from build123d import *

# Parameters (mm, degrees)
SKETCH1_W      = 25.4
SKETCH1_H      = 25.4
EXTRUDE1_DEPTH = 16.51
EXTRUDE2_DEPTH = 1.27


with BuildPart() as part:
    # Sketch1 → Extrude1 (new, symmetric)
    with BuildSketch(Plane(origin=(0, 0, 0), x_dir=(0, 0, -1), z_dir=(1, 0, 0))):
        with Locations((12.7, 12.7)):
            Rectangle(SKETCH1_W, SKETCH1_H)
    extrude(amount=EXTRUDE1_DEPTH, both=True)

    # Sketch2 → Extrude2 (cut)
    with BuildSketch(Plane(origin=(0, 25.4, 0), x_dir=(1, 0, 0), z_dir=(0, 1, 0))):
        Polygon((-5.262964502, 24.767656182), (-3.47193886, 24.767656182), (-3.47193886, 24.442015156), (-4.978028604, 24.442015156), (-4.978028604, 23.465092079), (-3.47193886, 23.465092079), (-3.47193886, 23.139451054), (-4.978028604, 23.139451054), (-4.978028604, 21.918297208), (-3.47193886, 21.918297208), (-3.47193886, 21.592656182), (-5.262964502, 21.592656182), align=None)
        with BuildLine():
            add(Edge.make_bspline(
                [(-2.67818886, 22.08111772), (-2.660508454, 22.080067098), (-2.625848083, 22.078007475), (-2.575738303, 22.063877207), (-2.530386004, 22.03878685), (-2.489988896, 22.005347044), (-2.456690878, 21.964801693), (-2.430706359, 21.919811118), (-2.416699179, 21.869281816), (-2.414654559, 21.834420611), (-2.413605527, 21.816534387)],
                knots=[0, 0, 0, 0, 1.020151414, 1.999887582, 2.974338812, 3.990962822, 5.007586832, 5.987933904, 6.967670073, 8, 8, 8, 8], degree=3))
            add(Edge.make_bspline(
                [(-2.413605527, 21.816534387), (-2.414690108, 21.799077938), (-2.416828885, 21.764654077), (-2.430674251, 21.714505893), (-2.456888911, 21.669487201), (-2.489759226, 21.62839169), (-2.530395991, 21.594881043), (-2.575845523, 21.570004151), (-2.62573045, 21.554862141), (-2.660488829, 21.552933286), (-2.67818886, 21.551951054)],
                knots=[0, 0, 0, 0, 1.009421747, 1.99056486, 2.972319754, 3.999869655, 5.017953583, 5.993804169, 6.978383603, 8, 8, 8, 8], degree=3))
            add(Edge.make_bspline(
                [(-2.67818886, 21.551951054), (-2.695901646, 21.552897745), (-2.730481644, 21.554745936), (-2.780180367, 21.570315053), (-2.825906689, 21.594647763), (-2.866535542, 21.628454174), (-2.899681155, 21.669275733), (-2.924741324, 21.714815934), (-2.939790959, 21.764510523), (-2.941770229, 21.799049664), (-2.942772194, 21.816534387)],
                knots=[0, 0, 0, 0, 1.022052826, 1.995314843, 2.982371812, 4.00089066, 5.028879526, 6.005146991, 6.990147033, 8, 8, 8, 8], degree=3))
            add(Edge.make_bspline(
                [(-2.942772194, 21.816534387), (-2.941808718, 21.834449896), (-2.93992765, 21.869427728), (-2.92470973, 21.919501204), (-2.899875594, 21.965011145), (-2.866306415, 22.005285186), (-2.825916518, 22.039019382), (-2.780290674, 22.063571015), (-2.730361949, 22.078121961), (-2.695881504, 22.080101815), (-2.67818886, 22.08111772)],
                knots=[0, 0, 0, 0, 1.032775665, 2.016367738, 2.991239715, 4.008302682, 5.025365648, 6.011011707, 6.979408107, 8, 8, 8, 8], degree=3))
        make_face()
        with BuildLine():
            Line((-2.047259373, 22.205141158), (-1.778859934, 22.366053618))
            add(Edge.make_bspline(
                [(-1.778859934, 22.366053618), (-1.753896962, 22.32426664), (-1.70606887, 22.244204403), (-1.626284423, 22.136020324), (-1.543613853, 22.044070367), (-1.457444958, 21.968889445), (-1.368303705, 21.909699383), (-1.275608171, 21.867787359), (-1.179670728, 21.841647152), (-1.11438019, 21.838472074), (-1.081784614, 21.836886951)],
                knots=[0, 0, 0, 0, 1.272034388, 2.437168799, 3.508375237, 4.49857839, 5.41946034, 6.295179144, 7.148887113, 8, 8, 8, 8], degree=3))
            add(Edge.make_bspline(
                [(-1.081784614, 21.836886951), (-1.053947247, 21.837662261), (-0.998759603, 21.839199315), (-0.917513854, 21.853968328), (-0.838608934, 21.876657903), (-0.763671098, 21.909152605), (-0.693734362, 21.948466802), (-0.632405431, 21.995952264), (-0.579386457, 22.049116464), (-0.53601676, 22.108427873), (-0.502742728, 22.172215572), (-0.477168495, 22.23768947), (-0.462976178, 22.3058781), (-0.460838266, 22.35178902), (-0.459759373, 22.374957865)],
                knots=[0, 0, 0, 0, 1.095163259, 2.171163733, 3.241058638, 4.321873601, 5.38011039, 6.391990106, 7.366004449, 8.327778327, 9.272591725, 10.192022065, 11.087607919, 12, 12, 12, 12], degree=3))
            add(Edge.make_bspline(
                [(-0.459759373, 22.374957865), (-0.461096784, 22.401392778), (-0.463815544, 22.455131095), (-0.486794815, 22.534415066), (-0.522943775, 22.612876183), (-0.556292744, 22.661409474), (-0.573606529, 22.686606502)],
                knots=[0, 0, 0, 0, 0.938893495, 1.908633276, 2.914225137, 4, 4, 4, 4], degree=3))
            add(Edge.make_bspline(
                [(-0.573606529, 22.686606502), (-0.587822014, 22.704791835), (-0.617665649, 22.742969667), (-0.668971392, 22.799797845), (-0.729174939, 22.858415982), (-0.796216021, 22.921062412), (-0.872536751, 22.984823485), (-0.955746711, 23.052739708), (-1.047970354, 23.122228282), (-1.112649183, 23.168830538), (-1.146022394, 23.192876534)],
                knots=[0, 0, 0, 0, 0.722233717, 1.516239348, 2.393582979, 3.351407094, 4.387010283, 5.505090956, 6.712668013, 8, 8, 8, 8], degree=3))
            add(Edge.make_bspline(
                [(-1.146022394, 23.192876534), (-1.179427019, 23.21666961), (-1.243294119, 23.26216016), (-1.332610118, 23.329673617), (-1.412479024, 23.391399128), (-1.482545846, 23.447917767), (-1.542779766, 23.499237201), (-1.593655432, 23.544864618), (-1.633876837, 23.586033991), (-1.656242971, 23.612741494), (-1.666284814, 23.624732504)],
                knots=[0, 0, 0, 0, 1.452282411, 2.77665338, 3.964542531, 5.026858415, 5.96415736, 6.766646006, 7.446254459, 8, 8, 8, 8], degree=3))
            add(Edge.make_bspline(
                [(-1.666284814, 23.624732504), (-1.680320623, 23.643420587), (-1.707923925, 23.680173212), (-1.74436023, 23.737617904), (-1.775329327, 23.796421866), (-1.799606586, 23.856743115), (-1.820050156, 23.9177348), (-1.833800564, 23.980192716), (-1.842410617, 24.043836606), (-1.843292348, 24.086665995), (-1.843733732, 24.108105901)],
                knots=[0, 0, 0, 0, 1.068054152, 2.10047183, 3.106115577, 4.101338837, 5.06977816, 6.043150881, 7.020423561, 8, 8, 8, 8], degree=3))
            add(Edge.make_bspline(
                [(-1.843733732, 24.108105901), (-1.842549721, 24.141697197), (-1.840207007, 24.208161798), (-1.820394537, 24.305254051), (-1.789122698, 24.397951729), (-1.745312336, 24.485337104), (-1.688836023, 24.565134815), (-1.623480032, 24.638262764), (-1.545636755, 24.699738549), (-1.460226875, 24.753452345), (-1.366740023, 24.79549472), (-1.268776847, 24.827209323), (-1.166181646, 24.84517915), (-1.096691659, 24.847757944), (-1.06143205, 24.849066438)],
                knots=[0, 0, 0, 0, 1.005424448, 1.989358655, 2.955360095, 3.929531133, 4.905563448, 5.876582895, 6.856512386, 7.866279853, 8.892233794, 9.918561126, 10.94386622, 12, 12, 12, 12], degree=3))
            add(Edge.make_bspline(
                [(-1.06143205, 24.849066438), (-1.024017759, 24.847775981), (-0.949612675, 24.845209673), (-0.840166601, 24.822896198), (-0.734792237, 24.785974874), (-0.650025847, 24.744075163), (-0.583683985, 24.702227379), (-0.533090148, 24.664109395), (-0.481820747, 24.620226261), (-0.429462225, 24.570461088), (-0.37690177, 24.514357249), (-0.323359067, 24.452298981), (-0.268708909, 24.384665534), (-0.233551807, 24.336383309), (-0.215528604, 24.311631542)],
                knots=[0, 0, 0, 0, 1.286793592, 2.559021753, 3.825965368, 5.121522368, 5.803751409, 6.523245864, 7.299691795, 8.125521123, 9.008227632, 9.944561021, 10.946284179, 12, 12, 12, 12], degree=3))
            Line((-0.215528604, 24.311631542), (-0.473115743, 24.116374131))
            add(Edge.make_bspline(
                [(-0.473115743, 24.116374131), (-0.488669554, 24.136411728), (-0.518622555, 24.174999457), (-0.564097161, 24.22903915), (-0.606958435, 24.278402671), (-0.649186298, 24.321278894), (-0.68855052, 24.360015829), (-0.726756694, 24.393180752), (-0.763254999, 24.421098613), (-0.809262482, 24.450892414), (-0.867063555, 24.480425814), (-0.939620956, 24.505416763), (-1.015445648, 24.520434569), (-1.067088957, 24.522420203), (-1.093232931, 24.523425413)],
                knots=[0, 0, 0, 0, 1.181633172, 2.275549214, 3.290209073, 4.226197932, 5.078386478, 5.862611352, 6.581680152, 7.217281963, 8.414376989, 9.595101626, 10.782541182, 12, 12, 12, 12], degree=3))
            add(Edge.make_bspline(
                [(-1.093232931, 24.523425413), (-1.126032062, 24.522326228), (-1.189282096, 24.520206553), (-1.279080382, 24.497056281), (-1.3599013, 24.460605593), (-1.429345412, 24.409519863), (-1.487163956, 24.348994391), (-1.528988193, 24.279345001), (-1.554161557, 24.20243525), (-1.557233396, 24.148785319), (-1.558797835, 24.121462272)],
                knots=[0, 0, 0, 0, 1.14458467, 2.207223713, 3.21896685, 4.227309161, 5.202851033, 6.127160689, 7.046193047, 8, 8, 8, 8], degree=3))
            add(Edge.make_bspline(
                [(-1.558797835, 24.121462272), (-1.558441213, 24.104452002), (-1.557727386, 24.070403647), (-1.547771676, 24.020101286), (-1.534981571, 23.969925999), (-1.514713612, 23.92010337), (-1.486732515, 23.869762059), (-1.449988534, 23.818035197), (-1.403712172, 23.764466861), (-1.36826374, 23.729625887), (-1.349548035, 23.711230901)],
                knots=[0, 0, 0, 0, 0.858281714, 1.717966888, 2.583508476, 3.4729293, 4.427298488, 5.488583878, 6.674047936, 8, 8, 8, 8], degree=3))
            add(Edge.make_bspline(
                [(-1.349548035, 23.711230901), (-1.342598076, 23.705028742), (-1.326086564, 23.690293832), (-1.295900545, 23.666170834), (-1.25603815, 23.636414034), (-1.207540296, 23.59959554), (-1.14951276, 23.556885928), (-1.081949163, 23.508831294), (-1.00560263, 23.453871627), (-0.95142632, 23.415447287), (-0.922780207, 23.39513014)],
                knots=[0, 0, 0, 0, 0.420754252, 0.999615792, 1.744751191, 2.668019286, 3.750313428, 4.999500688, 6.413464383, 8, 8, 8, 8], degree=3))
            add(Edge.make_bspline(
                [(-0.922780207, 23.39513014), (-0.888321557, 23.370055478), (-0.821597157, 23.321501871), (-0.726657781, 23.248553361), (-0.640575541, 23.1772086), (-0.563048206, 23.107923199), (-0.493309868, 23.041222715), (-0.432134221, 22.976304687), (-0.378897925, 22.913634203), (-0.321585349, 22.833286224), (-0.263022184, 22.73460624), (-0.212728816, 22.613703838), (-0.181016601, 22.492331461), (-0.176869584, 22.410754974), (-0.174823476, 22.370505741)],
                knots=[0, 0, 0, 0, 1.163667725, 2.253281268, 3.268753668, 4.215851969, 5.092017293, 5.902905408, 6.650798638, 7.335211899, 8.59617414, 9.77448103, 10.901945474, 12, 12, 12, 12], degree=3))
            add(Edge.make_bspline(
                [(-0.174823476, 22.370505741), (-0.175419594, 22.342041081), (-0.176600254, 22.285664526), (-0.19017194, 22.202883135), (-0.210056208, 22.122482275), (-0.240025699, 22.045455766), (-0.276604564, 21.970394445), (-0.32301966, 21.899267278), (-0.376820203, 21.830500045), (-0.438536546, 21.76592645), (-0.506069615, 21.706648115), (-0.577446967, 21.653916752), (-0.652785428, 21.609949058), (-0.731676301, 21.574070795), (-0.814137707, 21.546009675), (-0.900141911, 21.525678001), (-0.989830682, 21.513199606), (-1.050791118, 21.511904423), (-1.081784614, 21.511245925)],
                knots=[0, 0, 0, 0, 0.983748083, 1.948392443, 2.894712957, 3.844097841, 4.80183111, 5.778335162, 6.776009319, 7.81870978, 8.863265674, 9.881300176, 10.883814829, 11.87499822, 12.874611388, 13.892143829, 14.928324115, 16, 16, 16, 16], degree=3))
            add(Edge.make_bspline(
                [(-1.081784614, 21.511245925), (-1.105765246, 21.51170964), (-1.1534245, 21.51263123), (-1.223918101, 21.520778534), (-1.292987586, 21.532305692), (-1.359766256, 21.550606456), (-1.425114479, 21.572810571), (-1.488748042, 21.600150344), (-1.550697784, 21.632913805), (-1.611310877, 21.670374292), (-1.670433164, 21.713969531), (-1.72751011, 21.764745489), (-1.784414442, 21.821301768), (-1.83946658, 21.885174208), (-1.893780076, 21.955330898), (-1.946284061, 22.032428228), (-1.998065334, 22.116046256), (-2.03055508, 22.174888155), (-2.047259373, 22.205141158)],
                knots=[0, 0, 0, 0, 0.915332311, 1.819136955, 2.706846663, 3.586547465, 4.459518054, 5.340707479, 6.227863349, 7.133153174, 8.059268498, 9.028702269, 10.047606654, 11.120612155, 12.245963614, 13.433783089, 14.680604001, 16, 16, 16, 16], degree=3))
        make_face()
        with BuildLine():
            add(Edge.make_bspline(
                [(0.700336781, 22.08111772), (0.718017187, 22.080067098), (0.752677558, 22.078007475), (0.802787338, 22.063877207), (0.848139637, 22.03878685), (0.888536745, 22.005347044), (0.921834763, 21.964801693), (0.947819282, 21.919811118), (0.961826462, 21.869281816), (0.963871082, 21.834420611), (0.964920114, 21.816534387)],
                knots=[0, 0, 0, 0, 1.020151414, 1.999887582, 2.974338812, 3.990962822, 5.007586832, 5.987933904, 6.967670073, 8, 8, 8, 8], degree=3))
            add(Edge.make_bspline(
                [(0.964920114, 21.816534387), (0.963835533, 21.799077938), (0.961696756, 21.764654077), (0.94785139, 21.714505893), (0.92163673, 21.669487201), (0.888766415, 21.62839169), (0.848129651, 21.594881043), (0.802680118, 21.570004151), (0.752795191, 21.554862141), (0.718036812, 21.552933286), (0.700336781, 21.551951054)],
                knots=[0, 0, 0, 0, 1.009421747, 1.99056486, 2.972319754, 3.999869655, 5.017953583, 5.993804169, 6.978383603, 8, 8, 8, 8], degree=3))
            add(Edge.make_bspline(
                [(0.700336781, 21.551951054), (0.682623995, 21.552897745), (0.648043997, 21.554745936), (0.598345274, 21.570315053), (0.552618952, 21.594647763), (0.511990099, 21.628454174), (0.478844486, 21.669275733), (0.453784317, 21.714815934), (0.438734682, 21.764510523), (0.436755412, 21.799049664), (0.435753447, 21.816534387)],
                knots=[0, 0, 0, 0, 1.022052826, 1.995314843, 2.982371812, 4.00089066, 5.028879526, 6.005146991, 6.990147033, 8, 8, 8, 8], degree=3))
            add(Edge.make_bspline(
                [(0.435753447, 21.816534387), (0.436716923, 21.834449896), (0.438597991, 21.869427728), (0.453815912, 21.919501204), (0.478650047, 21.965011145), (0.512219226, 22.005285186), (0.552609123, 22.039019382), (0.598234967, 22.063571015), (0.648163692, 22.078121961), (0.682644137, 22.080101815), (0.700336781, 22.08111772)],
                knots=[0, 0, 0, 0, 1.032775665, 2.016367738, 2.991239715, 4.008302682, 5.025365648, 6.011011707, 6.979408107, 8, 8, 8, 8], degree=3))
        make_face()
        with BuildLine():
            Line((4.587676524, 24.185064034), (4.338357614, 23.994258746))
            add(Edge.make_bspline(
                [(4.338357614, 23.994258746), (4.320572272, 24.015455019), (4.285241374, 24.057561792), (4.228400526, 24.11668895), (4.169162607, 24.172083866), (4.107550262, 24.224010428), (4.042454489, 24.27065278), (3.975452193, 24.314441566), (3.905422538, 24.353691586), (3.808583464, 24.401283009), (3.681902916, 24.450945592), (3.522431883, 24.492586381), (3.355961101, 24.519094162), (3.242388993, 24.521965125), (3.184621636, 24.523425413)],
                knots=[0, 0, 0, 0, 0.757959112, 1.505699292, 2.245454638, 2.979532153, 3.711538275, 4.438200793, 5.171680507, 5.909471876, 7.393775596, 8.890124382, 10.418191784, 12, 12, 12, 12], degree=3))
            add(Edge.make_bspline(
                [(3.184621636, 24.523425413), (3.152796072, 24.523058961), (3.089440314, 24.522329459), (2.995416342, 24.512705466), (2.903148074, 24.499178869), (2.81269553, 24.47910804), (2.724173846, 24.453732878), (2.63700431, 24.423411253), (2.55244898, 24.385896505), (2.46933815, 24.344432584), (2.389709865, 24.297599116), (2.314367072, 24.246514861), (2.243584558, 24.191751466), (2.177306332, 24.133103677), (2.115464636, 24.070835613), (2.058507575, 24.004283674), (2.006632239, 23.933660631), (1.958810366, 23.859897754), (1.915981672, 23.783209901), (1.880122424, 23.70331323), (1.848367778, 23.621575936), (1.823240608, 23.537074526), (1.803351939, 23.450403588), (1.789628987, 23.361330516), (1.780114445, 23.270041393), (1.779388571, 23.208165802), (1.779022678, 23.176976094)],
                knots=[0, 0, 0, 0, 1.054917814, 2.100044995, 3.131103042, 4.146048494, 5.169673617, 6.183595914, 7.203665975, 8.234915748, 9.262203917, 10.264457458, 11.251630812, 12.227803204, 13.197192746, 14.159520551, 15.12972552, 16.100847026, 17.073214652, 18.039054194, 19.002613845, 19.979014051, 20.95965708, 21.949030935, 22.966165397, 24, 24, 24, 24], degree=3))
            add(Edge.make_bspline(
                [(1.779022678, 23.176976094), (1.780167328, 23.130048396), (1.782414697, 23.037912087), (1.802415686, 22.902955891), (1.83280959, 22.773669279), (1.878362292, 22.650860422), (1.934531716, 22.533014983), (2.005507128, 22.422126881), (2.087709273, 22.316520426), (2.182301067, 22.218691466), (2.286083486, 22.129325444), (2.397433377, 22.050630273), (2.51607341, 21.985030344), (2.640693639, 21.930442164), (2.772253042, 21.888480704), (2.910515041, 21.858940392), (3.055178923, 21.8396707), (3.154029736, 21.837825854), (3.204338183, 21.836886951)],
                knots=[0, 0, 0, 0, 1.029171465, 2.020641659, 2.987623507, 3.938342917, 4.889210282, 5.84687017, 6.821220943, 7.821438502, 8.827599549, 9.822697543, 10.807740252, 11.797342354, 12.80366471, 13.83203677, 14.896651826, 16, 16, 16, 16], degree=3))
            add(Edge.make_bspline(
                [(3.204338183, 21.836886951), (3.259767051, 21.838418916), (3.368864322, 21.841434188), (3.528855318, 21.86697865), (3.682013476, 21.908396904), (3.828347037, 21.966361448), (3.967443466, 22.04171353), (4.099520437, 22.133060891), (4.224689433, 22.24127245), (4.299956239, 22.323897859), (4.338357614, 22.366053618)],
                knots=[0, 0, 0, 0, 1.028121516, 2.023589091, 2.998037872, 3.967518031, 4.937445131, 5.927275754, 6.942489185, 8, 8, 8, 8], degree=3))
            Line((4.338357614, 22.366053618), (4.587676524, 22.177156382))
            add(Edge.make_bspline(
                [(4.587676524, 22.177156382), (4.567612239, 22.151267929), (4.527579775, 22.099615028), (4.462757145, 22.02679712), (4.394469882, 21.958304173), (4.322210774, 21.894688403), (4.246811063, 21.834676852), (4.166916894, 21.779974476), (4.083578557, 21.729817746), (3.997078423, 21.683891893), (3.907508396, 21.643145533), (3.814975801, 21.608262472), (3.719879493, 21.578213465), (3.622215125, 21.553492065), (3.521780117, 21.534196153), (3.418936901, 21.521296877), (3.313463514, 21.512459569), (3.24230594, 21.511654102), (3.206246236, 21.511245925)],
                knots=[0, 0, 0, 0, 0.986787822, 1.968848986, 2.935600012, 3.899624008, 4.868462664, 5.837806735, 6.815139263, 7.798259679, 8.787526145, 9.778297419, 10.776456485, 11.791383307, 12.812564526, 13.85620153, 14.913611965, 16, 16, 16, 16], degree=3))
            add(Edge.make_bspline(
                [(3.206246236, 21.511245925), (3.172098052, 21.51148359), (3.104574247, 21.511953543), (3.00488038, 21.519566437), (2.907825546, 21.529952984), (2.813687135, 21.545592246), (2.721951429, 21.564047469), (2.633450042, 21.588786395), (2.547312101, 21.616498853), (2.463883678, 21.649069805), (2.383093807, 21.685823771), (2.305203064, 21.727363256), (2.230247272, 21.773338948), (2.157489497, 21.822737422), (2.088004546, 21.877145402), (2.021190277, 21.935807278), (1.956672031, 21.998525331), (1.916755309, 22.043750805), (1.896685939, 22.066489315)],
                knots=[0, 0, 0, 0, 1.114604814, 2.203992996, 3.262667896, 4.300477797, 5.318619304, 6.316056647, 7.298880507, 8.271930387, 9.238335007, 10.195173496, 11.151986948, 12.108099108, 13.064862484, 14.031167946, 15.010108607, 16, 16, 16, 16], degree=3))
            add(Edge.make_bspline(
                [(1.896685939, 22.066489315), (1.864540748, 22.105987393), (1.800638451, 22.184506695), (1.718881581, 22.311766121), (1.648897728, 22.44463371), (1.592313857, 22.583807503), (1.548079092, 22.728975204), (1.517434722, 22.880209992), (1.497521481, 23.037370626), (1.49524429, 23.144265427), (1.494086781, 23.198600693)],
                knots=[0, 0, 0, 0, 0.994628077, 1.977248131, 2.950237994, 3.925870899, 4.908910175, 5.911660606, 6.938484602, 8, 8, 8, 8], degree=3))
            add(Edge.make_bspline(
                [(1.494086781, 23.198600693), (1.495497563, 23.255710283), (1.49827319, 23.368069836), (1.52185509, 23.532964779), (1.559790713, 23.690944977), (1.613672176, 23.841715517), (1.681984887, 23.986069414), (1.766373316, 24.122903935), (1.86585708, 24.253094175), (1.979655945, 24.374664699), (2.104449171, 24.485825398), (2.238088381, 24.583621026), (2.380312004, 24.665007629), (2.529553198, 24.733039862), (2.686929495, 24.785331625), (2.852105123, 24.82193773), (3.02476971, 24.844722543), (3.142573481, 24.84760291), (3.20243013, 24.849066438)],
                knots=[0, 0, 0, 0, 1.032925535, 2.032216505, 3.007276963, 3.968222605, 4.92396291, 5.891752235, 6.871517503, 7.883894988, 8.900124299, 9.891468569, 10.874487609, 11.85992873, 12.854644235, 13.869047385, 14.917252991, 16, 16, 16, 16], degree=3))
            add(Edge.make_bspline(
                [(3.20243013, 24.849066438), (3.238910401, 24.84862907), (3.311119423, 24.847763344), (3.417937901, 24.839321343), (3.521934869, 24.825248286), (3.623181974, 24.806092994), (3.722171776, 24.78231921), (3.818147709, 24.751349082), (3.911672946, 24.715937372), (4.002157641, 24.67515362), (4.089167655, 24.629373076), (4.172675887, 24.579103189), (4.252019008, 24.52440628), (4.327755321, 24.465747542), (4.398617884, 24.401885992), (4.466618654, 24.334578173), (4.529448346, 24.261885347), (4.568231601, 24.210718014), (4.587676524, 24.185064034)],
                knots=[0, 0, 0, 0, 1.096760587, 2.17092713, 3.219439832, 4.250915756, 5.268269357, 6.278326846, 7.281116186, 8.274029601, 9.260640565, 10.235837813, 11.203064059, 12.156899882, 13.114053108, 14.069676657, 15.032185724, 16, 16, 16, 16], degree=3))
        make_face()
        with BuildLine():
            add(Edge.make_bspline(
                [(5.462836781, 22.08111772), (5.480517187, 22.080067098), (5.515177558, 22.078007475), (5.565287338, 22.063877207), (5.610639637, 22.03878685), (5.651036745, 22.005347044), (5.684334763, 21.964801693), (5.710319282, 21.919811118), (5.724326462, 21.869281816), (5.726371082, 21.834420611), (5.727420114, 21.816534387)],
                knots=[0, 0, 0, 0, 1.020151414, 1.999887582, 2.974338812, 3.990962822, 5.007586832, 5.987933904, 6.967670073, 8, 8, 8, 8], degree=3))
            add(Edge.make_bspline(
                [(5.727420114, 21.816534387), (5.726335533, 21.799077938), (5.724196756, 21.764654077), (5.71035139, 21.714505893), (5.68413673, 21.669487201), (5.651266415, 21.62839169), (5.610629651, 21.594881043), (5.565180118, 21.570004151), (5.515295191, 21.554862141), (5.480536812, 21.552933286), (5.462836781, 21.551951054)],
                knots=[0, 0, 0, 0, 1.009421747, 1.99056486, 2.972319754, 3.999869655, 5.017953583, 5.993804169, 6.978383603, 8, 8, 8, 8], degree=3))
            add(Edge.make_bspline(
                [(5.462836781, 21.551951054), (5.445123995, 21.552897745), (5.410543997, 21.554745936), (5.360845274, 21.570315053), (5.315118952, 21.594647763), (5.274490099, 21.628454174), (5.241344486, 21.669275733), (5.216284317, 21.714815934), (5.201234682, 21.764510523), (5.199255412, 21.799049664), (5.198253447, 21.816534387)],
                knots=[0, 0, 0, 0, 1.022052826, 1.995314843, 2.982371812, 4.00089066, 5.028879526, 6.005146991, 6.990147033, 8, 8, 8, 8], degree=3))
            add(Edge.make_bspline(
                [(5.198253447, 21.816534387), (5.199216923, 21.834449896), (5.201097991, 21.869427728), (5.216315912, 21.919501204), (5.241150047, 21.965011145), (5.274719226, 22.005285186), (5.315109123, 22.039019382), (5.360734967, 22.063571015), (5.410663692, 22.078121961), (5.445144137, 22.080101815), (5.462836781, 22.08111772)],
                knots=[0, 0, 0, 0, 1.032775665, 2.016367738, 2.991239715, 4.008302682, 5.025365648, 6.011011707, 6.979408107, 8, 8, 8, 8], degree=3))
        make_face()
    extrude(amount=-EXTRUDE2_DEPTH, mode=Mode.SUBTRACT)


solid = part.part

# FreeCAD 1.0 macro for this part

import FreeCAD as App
import Part
import Sketcher

V = App.Vector
Q = App.Units.Quantity

doc = App.newDocument("Part")
params = doc.addObject("Spreadsheet::Sheet", "Params")
for row, (alias, value) in enumerate([
    ("sketch1_width", "1 in"),
    ("pad1_length", "1.3 in"),
    ("sketch2_height", "0.125 in"),
    ("pocket1_length", "0.05 in"),
], start=1):
    params.set(f"A{row}", alias)
    params.set(f"B{row}", "=" + value)
    params.setAlias(f"B{row}", alias)

body = doc.addObject("PartDesign::Body", "Body")

# Sketch on YZ plane
sketch1 = body.newObject("Sketcher::SketchObject", "Sketch")
sketch1.AttachmentSupport = (doc.getObject("YZ_Plane"), [""])
sketch1.MapMode = "FlatFace"
sketch1.addGeometry([
    Part.LineSegment(V(25.4, 0, 0), V(0, 0, 0)),
    Part.LineSegment(V(0, 0, 0), V(0, -25.4, 0)),
    Part.LineSegment(V(0, -25.4, 0), V(25.4, -25.4, 0)),
    Part.LineSegment(V(25.4, -25.4, 0), V(25.4, 0, 0)),
], False)
sketch1.addConstraint([
    Sketcher.Constraint("Coincident", 0, 2, 1, 1),
    Sketcher.Constraint("Coincident", 1, 2, 2, 1),
    Sketcher.Constraint("Coincident", 2, 2, 3, 1),
    Sketcher.Constraint("Coincident", 3, 2, 0, 1),
    Sketcher.Constraint("Horizontal", 0),
    Sketcher.Constraint("Vertical", 1),
    Sketcher.Constraint("Horizontal", 2),
    Sketcher.Constraint("Vertical", 3),
    Sketcher.Constraint("Coincident", 0, 2, -1, 1),
    Sketcher.Constraint("Equal", 2, 1),
    Sketcher.Constraint("DistanceX", 0, 2, 0, 1, Q("1 in")),
])
sketch1.setExpression("Constraints[10]", "Params.sketch1_width")
pad1 = body.newObject("PartDesign::Pad", "Pad")
pad1.Profile = sketch1
pad1.setExpression("Length", "Params.pad1_length")
pad1.Midplane = True

# Sketch on XZ plane
sketch2 = body.newObject("Sketcher::SketchObject", "Sketch001")
sketch2.AttachmentSupport = (doc.getObject("XZ_Plane"), [""])
sketch2.MapMode = "FlatFace"
sketch2.AttachmentOffset = App.Placement(V(0, 0, -1 * 25.4), App.Rotation())
sketch2.addGeometry([
    Part.LineSegment(V(-3.471939, -24.767656, 0), V(-5.262965, -24.767656, 0)),  # 0
    Part.LineSegment(V(-5.262965, -24.767656, 0), V(-5.262965, -21.592656, 0)),  # 1
    Part.LineSegment(V(-5.262965, -21.592656, 0), V(-3.471939, -21.592656, 0)),  # 2
    Part.LineSegment(V(-3.471939, -21.592656, 0), V(-3.471939, -21.918297, 0)),  # 3
    Part.LineSegment(V(-3.471939, -21.918297, 0), V(-4.978029, -21.918297, 0)),  # 4
    Part.LineSegment(V(-4.978029, -21.918297, 0), V(-4.978029, -23.139451, 0)),  # 5
    Part.LineSegment(V(-4.978029, -23.139451, 0), V(-3.471939, -23.139451, 0)),  # 6
    Part.LineSegment(V(-3.471939, -23.139451, 0), V(-3.471939, -23.465092, 0)),  # 7
    Part.LineSegment(V(-3.471939, -23.465092, 0), V(-4.978029, -23.465092, 0)),  # 8
    Part.LineSegment(V(-4.978029, -23.465092, 0), V(-4.978029, -24.442015, 0)),  # 9
    Part.LineSegment(V(-4.978029, -24.442015, 0), V(-3.471939, -24.442015, 0)),  # 10
    Part.LineSegment(V(-3.471939, -24.442015, 0), V(-3.471939, -24.767656, 0)),  # 11
    Part.BSplineCurve([V(-2.678189, -22.081118, 0), V(-2.660508, -22.080067, 0), V(-2.625848, -22.078007, 0), V(-2.575738, -22.063877, 0), V(-2.530386, -22.038787, 0), V(-2.489989, -22.005347, 0), V(-2.456691, -21.964802, 0), V(-2.430706, -21.919811, 0), V(-2.416699, -21.869282, 0), V(-2.414655, -21.834421, 0), V(-2.413606, -21.816534, 0)], [4, 1, 1, 1, 1, 1, 1, 1, 4], [0, 1.020151414, 1.999887582, 2.974338812, 3.990962822, 5.007586832, 5.987933904, 6.967670073, 8], False, 3, [1, 1, 1, 1, 1, 1, 1, 1, 1, 1, 1], False),  # 12
    Part.BSplineCurve([V(-2.942772, -21.816534, 0), V(-2.941809, -21.83445, 0), V(-2.939928, -21.869428, 0), V(-2.92471, -21.919501, 0), V(-2.899876, -21.965011, 0), V(-2.866306, -22.005285, 0), V(-2.825917, -22.039019, 0), V(-2.780291, -22.063571, 0), V(-2.730362, -22.078122, 0), V(-2.695882, -22.080102, 0), V(-2.678189, -22.081118, 0)], [4, 1, 1, 1, 1, 1, 1, 1, 4], [0, 1.032775665, 2.016367738, 2.991239715, 4.008302682, 5.025365648, 6.011011707, 6.979408107, 8], False, 3, [1, 1, 1, 1, 1, 1, 1, 1, 1, 1, 1], False),  # 13
    Part.BSplineCurve([V(-2.678189, -21.551951, 0), V(-2.695902, -21.552898, 0), V(-2.730482, -21.554746, 0), V(-2.78018, -21.570315, 0), V(-2.825907, -21.594648, 0), V(-2.866536, -21.628454, 0), V(-2.899681, -21.669276, 0), V(-2.924741, -21.714816, 0), V(-2.939791, -21.764511, 0), V(-2.94177, -21.79905, 0), V(-2.942772, -21.816534, 0)], [4, 1, 1, 1, 1, 1, 1, 1, 4], [0, 1.022052826, 1.995314843, 2.982371812, 4.00089066, 5.028879526, 6.005146991, 6.990147033, 8], False, 3, [1, 1, 1, 1, 1, 1, 1, 1, 1, 1, 1], False),  # 14
    Part.BSplineCurve([V(-2.413606, -21.816534, 0), V(-2.41469, -21.799078, 0), V(-2.416829, -21.764654, 0), V(-2.430674, -21.714506, 0), V(-2.456889, -21.669487, 0), V(-2.489759, -21.628392, 0), V(-2.530396, -21.594881, 0), V(-2.575846, -21.570004, 0), V(-2.62573, -21.554862, 0), V(-2.660489, -21.552933, 0), V(-2.678189, -21.551951, 0)], [4, 1, 1, 1, 1, 1, 1, 1, 4], [0, 1.009421747, 1.99056486, 2.972319754, 3.999869655, 5.017953583, 5.993804169, 6.978383603, 8], False, 3, [1, 1, 1, 1, 1, 1, 1, 1, 1, 1, 1], False),  # 15
    Part.LineSegment(V(-1.77886, -22.366054, 0), V(-2.047259, -22.205141, 0)),  # 16
    Part.BSplineCurve([V(-1.081785, -21.511246, 0), V(-1.105765, -21.51171, 0), V(-1.153425, -21.512631, 0), V(-1.223918, -21.520779, 0), V(-1.292988, -21.532306, 0), V(-1.359766, -21.550606, 0), V(-1.425114, -21.572811, 0), V(-1.488748, -21.60015, 0), V(-1.550698, -21.632914, 0), V(-1.611311, -21.670374, 0), V(-1.670433, -21.71397, 0), V(-1.72751, -21.764745, 0), V(-1.784414, -21.821302, 0), V(-1.839467, -21.885174, 0), V(-1.89378, -21.955331, 0), V(-1.946284, -22.032428, 0), V(-1.998065, -22.116046, 0), V(-2.030555, -22.174888, 0), V(-2.047259, -22.205141, 0)], [4, 1, 1, 1, 1, 1, 1, 1, 1, 1, 1, 1, 1, 1, 1, 1, 4], [0, 0.915332311, 1.819136955, 2.706846663, 3.586547465, 4.459518054, 5.340707479, 6.227863349, 7.133153174, 8.059268498, 9.028702269, 10.047606654, 11.120612155, 12.245963614, 13.433783089, 14.680604001, 16], False, 3, [1, 1, 1, 1, 1, 1, 1, 1, 1, 1, 1, 1, 1, 1, 1, 1, 1, 1, 1], False),  # 17
    Part.BSplineCurve([V(-0.174823, -22.370506, 0), V(-0.17542, -22.342041, 0), V(-0.1766, -22.285665, 0), V(-0.190172, -22.202883, 0), V(-0.210056, -22.122482, 0), V(-0.240026, -22.045456, 0), V(-0.276605, -21.970394, 0), V(-0.32302, -21.899267, 0), V(-0.37682, -21.8305, 0), V(-0.438537, -21.765926, 0), V(-0.50607, -21.706648, 0), V(-0.577447, -21.653917, 0), V(-0.652785, -21.609949, 0), V(-0.731676, -21.574071, 0), V(-0.814138, -21.54601, 0), V(-0.900142, -21.525678, 0), V(-0.989831, -21.5132, 0), V(-1.050791, -21.511904, 0), V(-1.081785, -21.511246, 0)], [4, 1, 1, 1, 1, 1, 1, 1, 1, 1, 1, 1, 1, 1, 1, 1, 4], [0, 0.983748083, 1.948392443, 2.894712957, 3.844097841, 4.80183111, 5.778335162, 6.776009319, 7.81870978, 8.863265674, 9.881300176, 10.883814829, 11.87499822, 12.874611388, 13.892143829, 14.928324115, 16], False, 3, [1, 1, 1, 1, 1, 1, 1, 1, 1, 1, 1, 1, 1, 1, 1, 1, 1, 1, 1], False),  # 18
    Part.BSplineCurve([V(-0.92278, -23.39513, 0), V(-0.888322, -23.370055, 0), V(-0.821597, -23.321502, 0), V(-0.726658, -23.248553, 0), V(-0.640576, -23.177209, 0), V(-0.563048, -23.107923, 0), V(-0.49331, -23.041223, 0), V(-0.432134, -22.976305, 0), V(-0.378898, -22.913634, 0), V(-0.321585, -22.833286, 0), V(-0.263022, -22.734606, 0), V(-0.212729, -22.613704, 0), V(-0.181017, -22.492331, 0), V(-0.17687, -22.410755, 0), V(-0.174823, -22.370506, 0)], [4, 1, 1, 1, 1, 1, 1, 1, 1, 1, 1, 1, 4], [0, 1.163667725, 2.253281268, 3.268753668, 4.215851969, 5.092017293, 5.902905408, 6.650798638, 7.335211899, 8.59617414, 9.77448103, 10.901945474, 12], False, 3, [1, 1, 1, 1, 1, 1, 1, 1, 1, 1, 1, 1, 1, 1, 1], False),  # 19
    Part.BSplineCurve([V(-1.349548, -23.711231, 0), V(-1.342598, -23.705029, 0), V(-1.326087, -23.690294, 0), V(-1.295901, -23.666171, 0), V(-1.256038, -23.636414, 0), V(-1.20754, -23.599596, 0), V(-1.149513, -23.556886, 0), V(-1.081949, -23.508831, 0), V(-1.005603, -23.453872, 0), V(-0.951426, -23.415447, 0), V(-0.92278, -23.39513, 0)], [4, 1, 1, 1, 1, 1, 1, 1, 4], [0, 0.420754252, 0.999615792, 1.744751191, 2.668019286, 3.750313428, 4.999500688, 6.413464383, 8], False, 3, [1, 1, 1, 1, 1, 1, 1, 1, 1, 1, 1], False),  # 20
    Part.BSplineCurve([V(-1.558798, -24.121462, 0), V(-1.558441, -24.104452, 0), V(-1.557727, -24.070404, 0), V(-1.547772, -24.020101, 0), V(-1.534982, -23.969926, 0), V(-1.514714, -23.920103, 0), V(-1.486733, -23.869762, 0), V(-1.449989, -23.818035, 0), V(-1.403712, -23.764467, 0), V(-1.368264, -23.729626, 0), V(-1.349548, -23.711231, 0)], [4, 1, 1, 1, 1, 1, 1, 1, 4], [0, 0.858281714, 1.717966888, 2.583508476, 3.4729293, 4.427298488, 5.488583878, 6.674047936, 8], False, 3, [1, 1, 1, 1, 1, 1, 1, 1, 1, 1, 1], False),  # 21
    Part.BSplineCurve([V(-1.093233, -24.523425, 0), V(-1.126032, -24.522326, 0), V(-1.189282, -24.520207, 0), V(-1.27908, -24.497056, 0), V(-1.359901, -24.460606, 0), V(-1.429345, -24.40952, 0), V(-1.487164, -24.348994, 0), V(-1.528988, -24.279345, 0), V(-1.554162, -24.202435, 0), V(-1.557233, -24.148785, 0), V(-1.558798, -24.121462, 0)], [4, 1, 1, 1, 1, 1, 1, 1, 4], [0, 1.14458467, 2.207223713, 3.21896685, 4.227309161, 5.202851033, 6.127160689, 7.046193047, 8], False, 3, [1, 1, 1, 1, 1, 1, 1, 1, 1, 1, 1], False),  # 22
    Part.BSplineCurve([V(-0.473116, -24.116374, 0), V(-0.48867, -24.136412, 0), V(-0.518623, -24.174999, 0), V(-0.564097, -24.229039, 0), V(-0.606958, -24.278403, 0), V(-0.649186, -24.321279, 0), V(-0.688551, -24.360016, 0), V(-0.726757, -24.393181, 0), V(-0.763255, -24.421099, 0), V(-0.809262, -24.450892, 0), V(-0.867064, -24.480426, 0), V(-0.939621, -24.505417, 0), V(-1.015446, -24.520435, 0), V(-1.067089, -24.52242, 0), V(-1.093233, -24.523425, 0)], [4, 1, 1, 1, 1, 1, 1, 1, 1, 1, 1, 1, 4], [0, 1.181633172, 2.275549214, 3.290209073, 4.226197932, 5.078386478, 5.862611352, 6.581680152, 7.217281963, 8.414376989, 9.595101626, 10.782541182, 12], False, 3, [1, 1, 1, 1, 1, 1, 1, 1, 1, 1, 1, 1, 1, 1, 1], False),  # 23
    Part.LineSegment(V(-0.473116, -24.116374, 0), V(-0.215529, -24.311632, 0)),  # 24
    Part.BSplineCurve([V(-1.061432, -24.849066, 0), V(-1.024018, -24.847776, 0), V(-0.949613, -24.84521, 0), V(-0.840167, -24.822896, 0), V(-0.734792, -24.785975, 0), V(-0.650026, -24.744075, 0), V(-0.583684, -24.702227, 0), V(-0.53309, -24.664109, 0), V(-0.481821, -24.620226, 0), V(-0.429462, -24.570461, 0), V(-0.376902, -24.514357, 0), V(-0.323359, -24.452299, 0), V(-0.268709, -24.384666, 0), V(-0.233552, -24.336383, 0), V(-0.215529, -24.311632, 0)], [4, 1, 1, 1, 1, 1, 1, 1, 1, 1, 1, 1, 4], [0, 1.286793592, 2.559021753, 3.825965368, 5.121522368, 5.803751409, 6.523245864, 7.299691795, 8.125521123, 9.008227632, 9.944561021, 10.946284179, 12], False, 3, [1, 1, 1, 1, 1, 1, 1, 1, 1, 1, 1, 1, 1, 1, 1], False),  # 25
    Part.BSplineCurve([V(-1.843734, -24.108106, 0), V(-1.84255, -24.141697, 0), V(-1.840207, -24.208162, 0), V(-1.820395, -24.305254, 0), V(-1.789123, -24.397952, 0), V(-1.745312, -24.485337, 0), V(-1.688836, -24.565135, 0), V(-1.62348, -24.638263, 0), V(-1.545637, -24.699739, 0), V(-1.460227, -24.753452, 0), V(-1.36674, -24.795495, 0), V(-1.268777, -24.827209, 0), V(-1.166182, -24.845179, 0), V(-1.096692, -24.847758, 0), V(-1.061432, -24.849066, 0)], [4, 1, 1, 1, 1, 1, 1, 1, 1, 1, 1, 1, 4], [0, 1.005424448, 1.989358655, 2.955360095, 3.929531133, 4.905563448, 5.876582895, 6.856512386, 7.866279853, 8.892233794, 9.918561126, 10.94386622, 12], False, 3, [1, 1, 1, 1, 1, 1, 1, 1, 1, 1, 1, 1, 1, 1, 1], False),  # 26
    Part.BSplineCurve([V(-1.666285, -23.624733, 0), V(-1.680321, -23.643421, 0), V(-1.707924, -23.680173, 0), V(-1.74436, -23.737618, 0), V(-1.775329, -23.796422, 0), V(-1.799607, -23.856743, 0), V(-1.82005, -23.917735, 0), V(-1.833801, -23.980193, 0), V(-1.842411, -24.043837, 0), V(-1.843292, -24.086666, 0), V(-1.843734, -24.108106, 0)], [4, 1, 1, 1, 1, 1, 1, 1, 4], [0, 1.068054152, 2.10047183, 3.106115577, 4.101338837, 5.06977816, 6.043150881, 7.020423561, 8], False, 3, [1, 1, 1, 1, 1, 1, 1, 1, 1, 1, 1], False),  # 27
    Part.BSplineCurve([V(-1.146022, -23.192877, 0), V(-1.179427, -23.21667, 0), V(-1.243294, -23.26216, 0), V(-1.33261, -23.329674, 0), V(-1.412479, -23.391399, 0), V(-1.482546, -23.447918, 0), V(-1.54278, -23.499237, 0), V(-1.593655, -23.544865, 0), V(-1.633877, -23.586034, 0), V(-1.656243, -23.612741, 0), V(-1.666285, -23.624733, 0)], [4, 1, 1, 1, 1, 1, 1, 1, 4], [0, 1.452282411, 2.77665338, 3.964542531, 5.026858415, 5.96415736, 6.766646006, 7.446254459, 8], False, 3, [1, 1, 1, 1, 1, 1, 1, 1, 1, 1, 1], False),  # 28
    Part.BSplineCurve([V(-0.573607, -22.686607, 0), V(-0.587822, -22.704792, 0), V(-0.617666, -22.74297, 0), V(-0.668971, -22.799798, 0), V(-0.729175, -22.858416, 0), V(-0.796216, -22.921062, 0), V(-0.872537, -22.984823, 0), V(-0.955747, -23.05274, 0), V(-1.04797, -23.122228, 0), V(-1.112649, -23.168831, 0), V(-1.146022, -23.192877, 0)], [4, 1, 1, 1, 1, 1, 1, 1, 4], [0, 0.722233717, 1.516239348, 2.393582979, 3.351407094, 4.387010283, 5.505090956, 6.712668013, 8], False, 3, [1, 1, 1, 1, 1, 1, 1, 1, 1, 1, 1], False),  # 29
    Part.BSplineCurve([V(-0.459759, -22.374958, 0), V(-0.461097, -22.401393, 0), V(-0.463816, -22.455131, 0), V(-0.486795, -22.534415, 0), V(-0.522944, -22.612876, 0), V(-0.556293, -22.661409, 0), V(-0.573607, -22.686607, 0)], [4, 1, 1, 1, 4], [0, 0.938893495, 1.908633276, 2.914225137, 4], False, 3, [1, 1, 1, 1, 1, 1, 1], False),  # 30
    Part.BSplineCurve([V(-1.081785, -21.836887, 0), V(-1.053947, -21.837662, 0), V(-0.99876, -21.839199, 0), V(-0.917514, -21.853968, 0), V(-0.838609, -21.876658, 0), V(-0.763671, -21.909153, 0), V(-0.693734, -21.948467, 0), V(-0.632405, -21.995952, 0), V(-0.579386, -22.049116, 0), V(-0.536017, -22.108428, 0), V(-0.502743, -22.172216, 0), V(-0.477168, -22.237689, 0), V(-0.462976, -22.305878, 0), V(-0.460838, -22.351789, 0), V(-0.459759, -22.374958, 0)], [4, 1, 1, 1, 1, 1, 1, 1, 1, 1, 1, 1, 4], [0, 1.095163259, 2.171163733, 3.241058638, 4.321873601, 5.38011039, 6.391990106, 7.366004449, 8.327778327, 9.272591725, 10.192022065, 11.087607919, 12], False, 3, [1, 1, 1, 1, 1, 1, 1, 1, 1, 1, 1, 1, 1, 1, 1], False),  # 31
    Part.BSplineCurve([V(-1.77886, -22.366054, 0), V(-1.753897, -22.324267, 0), V(-1.706069, -22.244204, 0), V(-1.626284, -22.13602, 0), V(-1.543614, -22.04407, 0), V(-1.457445, -21.968889, 0), V(-1.368304, -21.909699, 0), V(-1.275608, -21.867787, 0), V(-1.179671, -21.841647, 0), V(-1.11438, -21.838472, 0), V(-1.081785, -21.836887, 0)], [4, 1, 1, 1, 1, 1, 1, 1, 4], [0, 1.272034388, 2.437168799, 3.508375237, 4.49857839, 5.41946034, 6.295179144, 7.148887113, 8], False, 3, [1, 1, 1, 1, 1, 1, 1, 1, 1, 1, 1], False),  # 32
    Part.BSplineCurve([V(0.700337, -22.081118, 0), V(0.718017, -22.080067, 0), V(0.752678, -22.078007, 0), V(0.802787, -22.063877, 0), V(0.84814, -22.038787, 0), V(0.888537, -22.005347, 0), V(0.921835, -21.964802, 0), V(0.947819, -21.919811, 0), V(0.961826, -21.869282, 0), V(0.963871, -21.834421, 0), V(0.96492, -21.816534, 0)], [4, 1, 1, 1, 1, 1, 1, 1, 4], [0, 1.020151414, 1.999887582, 2.974338812, 3.990962822, 5.007586832, 5.987933904, 6.967670073, 8], False, 3, [1, 1, 1, 1, 1, 1, 1, 1, 1, 1, 1], False),  # 33
    Part.BSplineCurve([V(0.435753, -21.816534, 0), V(0.436717, -21.83445, 0), V(0.438598, -21.869428, 0), V(0.453816, -21.919501, 0), V(0.47865, -21.965011, 0), V(0.512219, -22.005285, 0), V(0.552609, -22.039019, 0), V(0.598235, -22.063571, 0), V(0.648164, -22.078122, 0), V(0.682644, -22.080102, 0), V(0.700337, -22.081118, 0)], [4, 1, 1, 1, 1, 1, 1, 1, 4], [0, 1.032775665, 2.016367738, 2.991239715, 4.008302682, 5.025365648, 6.011011707, 6.979408107, 8], False, 3, [1, 1, 1, 1, 1, 1, 1, 1, 1, 1, 1], False),  # 34
    Part.BSplineCurve([V(0.700337, -21.551951, 0), V(0.682624, -21.552898, 0), V(0.648044, -21.554746, 0), V(0.598345, -21.570315, 0), V(0.552619, -21.594648, 0), V(0.51199, -21.628454, 0), V(0.478844, -21.669276, 0), V(0.453784, -21.714816, 0), V(0.438735, -21.764511, 0), V(0.436755, -21.79905, 0), V(0.435753, -21.816534, 0)], [4, 1, 1, 1, 1, 1, 1, 1, 4], [0, 1.022052826, 1.995314843, 2.982371812, 4.00089066, 5.028879526, 6.005146991, 6.990147033, 8], False, 3, [1, 1, 1, 1, 1, 1, 1, 1, 1, 1, 1], False),  # 35
    Part.BSplineCurve([V(0.96492, -21.816534, 0), V(0.963836, -21.799078, 0), V(0.961697, -21.764654, 0), V(0.947851, -21.714506, 0), V(0.921637, -21.669487, 0), V(0.888766, -21.628392, 0), V(0.84813, -21.594881, 0), V(0.80268, -21.570004, 0), V(0.752795, -21.554862, 0), V(0.718037, -21.552933, 0), V(0.700337, -21.551951, 0)], [4, 1, 1, 1, 1, 1, 1, 1, 4], [0, 1.009421747, 1.99056486, 2.972319754, 3.999869655, 5.017953583, 5.993804169, 6.978383603, 8], False, 3, [1, 1, 1, 1, 1, 1, 1, 1, 1, 1, 1], False),  # 36
    Part.LineSegment(V(4.338358, -23.994259, 0), V(4.587677, -24.185064, 0)),  # 37
    Part.BSplineCurve([V(3.20243, -24.849066, 0), V(3.23891, -24.848629, 0), V(3.311119, -24.847763, 0), V(3.417938, -24.839321, 0), V(3.521935, -24.825248, 0), V(3.623182, -24.806093, 0), V(3.722172, -24.782319, 0), V(3.818148, -24.751349, 0), V(3.911673, -24.715937, 0), V(4.002158, -24.675154, 0), V(4.089168, -24.629373, 0), V(4.172676, -24.579103, 0), V(4.252019, -24.524406, 0), V(4.327755, -24.465748, 0), V(4.398618, -24.401886, 0), V(4.466619, -24.334578, 0), V(4.529448, -24.261885, 0), V(4.568232, -24.210718, 0), V(4.587677, -24.185064, 0)], [4, 1, 1, 1, 1, 1, 1, 1, 1, 1, 1, 1, 1, 1, 1, 1, 4], [0, 1.096760587, 2.17092713, 3.219439832, 4.250915756, 5.268269357, 6.278326846, 7.281116186, 8.274029601, 9.260640565, 10.235837813, 11.203064059, 12.156899882, 13.114053108, 14.069676657, 15.032185724, 16], False, 3, [1, 1, 1, 1, 1, 1, 1, 1, 1, 1, 1, 1, 1, 1, 1, 1, 1, 1, 1], False),  # 38
    Part.BSplineCurve([V(1.494087, -23.198601, 0), V(1.495498, -23.25571, 0), V(1.498273, -23.36807, 0), V(1.521855, -23.532965, 0), V(1.559791, -23.690945, 0), V(1.613672, -23.841716, 0), V(1.681985, -23.986069, 0), V(1.766373, -24.122904, 0), V(1.865857, -24.253094, 0), V(1.979656, -24.374665, 0), V(2.104449, -24.485825, 0), V(2.238088, -24.583621, 0), V(2.380312, -24.665008, 0), V(2.529553, -24.73304, 0), V(2.686929, -24.785332, 0), V(2.852105, -24.821938, 0), V(3.02477, -24.844723, 0), V(3.142573, -24.847603, 0), V(3.20243, -24.849066, 0)], [4, 1, 1, 1, 1, 1, 1, 1, 1, 1, 1, 1, 1, 1, 1, 1, 4], [0, 1.032925535, 2.032216505, 3.007276963, 3.968222605, 4.92396291, 5.891752235, 6.871517503, 7.883894988, 8.900124299, 9.891468569, 10.874487609, 11.85992873, 12.854644235, 13.869047385, 14.917252991, 16], False, 3, [1, 1, 1, 1, 1, 1, 1, 1, 1, 1, 1, 1, 1, 1, 1, 1, 1, 1, 1], False),  # 39
    Part.BSplineCurve([V(1.896686, -22.066489, 0), V(1.864541, -22.105987, 0), V(1.800638, -22.184507, 0), V(1.718882, -22.311766, 0), V(1.648898, -22.444634, 0), V(1.592314, -22.583808, 0), V(1.548079, -22.728975, 0), V(1.517435, -22.88021, 0), V(1.497521, -23.037371, 0), V(1.495244, -23.144265, 0), V(1.494087, -23.198601, 0)], [4, 1, 1, 1, 1, 1, 1, 1, 4], [0, 0.994628077, 1.977248131, 2.950237994, 3.925870899, 4.908910175, 5.911660606, 6.938484602, 8], False, 3, [1, 1, 1, 1, 1, 1, 1, 1, 1, 1, 1], False),  # 40
    Part.BSplineCurve([V(3.206246, -21.511246, 0), V(3.172098, -21.511484, 0), V(3.104574, -21.511954, 0), V(3.00488, -21.519566, 0), V(2.907826, -21.529953, 0), V(2.813687, -21.545592, 0), V(2.721951, -21.564047, 0), V(2.63345, -21.588786, 0), V(2.547312, -21.616499, 0), V(2.463884, -21.64907, 0), V(2.383094, -21.685824, 0), V(2.305203, -21.727363, 0), V(2.230247, -21.773339, 0), V(2.157489, -21.822737, 0), V(2.088005, -21.877145, 0), V(2.02119, -21.935807, 0), V(1.956672, -21.998525, 0), V(1.916755, -22.043751, 0), V(1.896686, -22.066489, 0)], [4, 1, 1, 1, 1, 1, 1, 1, 1, 1, 1, 1, 1, 1, 1, 1, 4], [0, 1.114604814, 2.203992996, 3.262667896, 4.300477797, 5.318619304, 6.316056647, 7.298880507, 8.271930387, 9.238335007, 10.195173496, 11.151986948, 12.108099108, 13.064862484, 14.031167946, 15.010108607, 16], False, 3, [1, 1, 1, 1, 1, 1, 1, 1, 1, 1, 1, 1, 1, 1, 1, 1, 1, 1, 1], False),  # 41
    Part.BSplineCurve([V(4.587677, -22.177156, 0), V(4.567612, -22.151268, 0), V(4.52758, -22.099615, 0), V(4.462757, -22.026797, 0), V(4.39447, -21.958304, 0), V(4.322211, -21.894688, 0), V(4.246811, -21.834677, 0), V(4.166917, -21.779974, 0), V(4.083579, -21.729818, 0), V(3.997078, -21.683892, 0), V(3.907508, -21.643146, 0), V(3.814976, -21.608262, 0), V(3.719879, -21.578213, 0), V(3.622215, -21.553492, 0), V(3.52178, -21.534196, 0), V(3.418937, -21.521297, 0), V(3.313464, -21.51246, 0), V(3.242306, -21.511654, 0), V(3.206246, -21.511246, 0)], [4, 1, 1, 1, 1, 1, 1, 1, 1, 1, 1, 1, 1, 1, 1, 1, 4], [0, 0.986787822, 1.968848986, 2.935600012, 3.899624008, 4.868462664, 5.837806735, 6.815139263, 7.798259679, 8.787526145, 9.778297419, 10.776456485, 11.791383307, 12.812564526, 13.85620153, 14.913611965, 16], False, 3, [1, 1, 1, 1, 1, 1, 1, 1, 1, 1, 1, 1, 1, 1, 1, 1, 1, 1, 1], False),  # 42
    Part.LineSegment(V(4.587677, -22.177156, 0), V(4.338358, -22.366054, 0)),  # 43
    Part.BSplineCurve([V(3.204338, -21.836887, 0), V(3.259767, -21.838419, 0), V(3.368864, -21.841434, 0), V(3.528855, -21.866979, 0), V(3.682013, -21.908397, 0), V(3.828347, -21.966361, 0), V(3.967443, -22.041714, 0), V(4.09952, -22.133061, 0), V(4.224689, -22.241272, 0), V(4.299956, -22.323898, 0), V(4.338358, -22.366054, 0)], [4, 1, 1, 1, 1, 1, 1, 1, 4], [0, 1.028121516, 2.023589091, 2.998037872, 3.967518031, 4.937445131, 5.927275754, 6.942489185, 8], False, 3, [1, 1, 1, 1, 1, 1, 1, 1, 1, 1, 1], False),  # 44
    Part.BSplineCurve([V(1.779023, -23.176976, 0), V(1.780167, -23.130048, 0), V(1.782415, -23.037912, 0), V(1.802416, -22.902956, 0), V(1.83281, -22.773669, 0), V(1.878362, -22.65086, 0), V(1.934532, -22.533015, 0), V(2.005507, -22.422127, 0), V(2.087709, -22.31652, 0), V(2.182301, -22.218691, 0), V(2.286083, -22.129325, 0), V(2.397433, -22.05063, 0), V(2.516073, -21.98503, 0), V(2.640694, -21.930442, 0), V(2.772253, -21.888481, 0), V(2.910515, -21.85894, 0), V(3.055179, -21.839671, 0), V(3.15403, -21.837826, 0), V(3.204338, -21.836887, 0)], [4, 1, 1, 1, 1, 1, 1, 1, 1, 1, 1, 1, 1, 1, 1, 1, 4], [0, 1.029171465, 2.020641659, 2.987623507, 3.938342917, 4.889210282, 5.84687017, 6.821220943, 7.821438502, 8.827599549, 9.822697543, 10.807740252, 11.797342354, 12.80366471, 13.83203677, 14.896651826, 16], False, 3, [1, 1, 1, 1, 1, 1, 1, 1, 1, 1, 1, 1, 1, 1, 1, 1, 1, 1, 1], False),  # 45
    Part.BSplineCurve([V(3.184622, -24.523425, 0), V(3.152796, -24.523059, 0), V(3.08944, -24.522329, 0), V(2.995416, -24.512705, 0), V(2.903148, -24.499179, 0), V(2.812696, -24.479108, 0), V(2.724174, -24.453733, 0), V(2.637004, -24.423411, 0), V(2.552449, -24.385897, 0), V(2.469338, -24.344433, 0), V(2.38971, -24.297599, 0), V(2.314367, -24.246515, 0), V(2.243585, -24.191751, 0), V(2.177306, -24.133104, 0), V(2.115465, -24.070836, 0), V(2.058508, -24.004284, 0), V(2.006632, -23.933661, 0), V(1.95881, -23.859898, 0), V(1.915982, -23.78321, 0), V(1.880122, -23.703313, 0), V(1.848368, -23.621576, 0), V(1.823241, -23.537075, 0), V(1.803352, -23.450404, 0), V(1.789629, -23.361331, 0), V(1.780114, -23.270041, 0), V(1.779389, -23.208166, 0), V(1.779023, -23.176976, 0)], [4, 1, 1, 1, 1, 1, 1, 1, 1, 1, 1, 1, 1, 1, 1, 1, 1, 1, 1, 1, 1, 1, 1, 1, 4], [0, 1.054917814, 2.100044995, 3.131103042, 4.146048494, 5.169673617, 6.183595914, 7.203665975, 8.234915748, 9.262203917, 10.264457458, 11.251630812, 12.227803204, 13.197192746, 14.159520551, 15.12972552, 16.100847026, 17.073214652, 18.039054194, 19.002613845, 19.979014051, 20.95965708, 21.949030935, 22.966165397, 24], False, 3, [1, 1, 1, 1, 1, 1, 1, 1, 1, 1, 1, 1, 1, 1, 1, 1, 1, 1, 1, 1, 1, 1, 1, 1, 1, 1, 1], False),  # 46
    Part.BSplineCurve([V(4.338358, -23.994259, 0), V(4.320572, -24.015455, 0), V(4.285241, -24.057562, 0), V(4.228401, -24.116689, 0), V(4.169163, -24.172084, 0), V(4.10755, -24.22401, 0), V(4.042454, -24.270653, 0), V(3.975452, -24.314442, 0), V(3.905423, -24.353692, 0), V(3.808583, -24.401283, 0), V(3.681903, -24.450946, 0), V(3.522432, -24.492586, 0), V(3.355961, -24.519094, 0), V(3.242389, -24.521965, 0), V(3.184622, -24.523425, 0)], [4, 1, 1, 1, 1, 1, 1, 1, 1, 1, 1, 1, 4], [0, 0.757959112, 1.505699292, 2.245454638, 2.979532153, 3.711538275, 4.438200793, 5.171680507, 5.909471876, 7.393775596, 8.890124382, 10.418191784, 12], False, 3, [1, 1, 1, 1, 1, 1, 1, 1, 1, 1, 1, 1, 1, 1, 1], False),  # 47
    Part.BSplineCurve([V(5.462837, -22.081118, 0), V(5.480517, -22.080067, 0), V(5.515178, -22.078007, 0), V(5.565287, -22.063877, 0), V(5.61064, -22.038787, 0), V(5.651037, -22.005347, 0), V(5.684335, -21.964802, 0), V(5.710319, -21.919811, 0), V(5.724326, -21.869282, 0), V(5.726371, -21.834421, 0), V(5.72742, -21.816534, 0)], [4, 1, 1, 1, 1, 1, 1, 1, 4], [0, 1.020151414, 1.999887582, 2.974338812, 3.990962822, 5.007586832, 5.987933904, 6.967670073, 8], False, 3, [1, 1, 1, 1, 1, 1, 1, 1, 1, 1, 1], False),  # 48
    Part.BSplineCurve([V(5.198253, -21.816534, 0), V(5.199217, -21.83445, 0), V(5.201098, -21.869428, 0), V(5.216316, -21.919501, 0), V(5.24115, -21.965011, 0), V(5.274719, -22.005285, 0), V(5.315109, -22.039019, 0), V(5.360735, -22.063571, 0), V(5.410664, -22.078122, 0), V(5.445144, -22.080102, 0), V(5.462837, -22.081118, 0)], [4, 1, 1, 1, 1, 1, 1, 1, 4], [0, 1.032775665, 2.016367738, 2.991239715, 4.008302682, 5.025365648, 6.011011707, 6.979408107, 8], False, 3, [1, 1, 1, 1, 1, 1, 1, 1, 1, 1, 1], False),  # 49
    Part.BSplineCurve([V(5.462837, -21.551951, 0), V(5.445124, -21.552898, 0), V(5.410544, -21.554746, 0), V(5.360845, -21.570315, 0), V(5.315119, -21.594648, 0), V(5.27449, -21.628454, 0), V(5.241344, -21.669276, 0), V(5.216284, -21.714816, 0), V(5.201235, -21.764511, 0), V(5.199255, -21.79905, 0), V(5.198253, -21.816534, 0)], [4, 1, 1, 1, 1, 1, 1, 1, 4], [0, 1.022052826, 1.995314843, 2.982371812, 4.00089066, 5.028879526, 6.005146991, 6.990147033, 8], False, 3, [1, 1, 1, 1, 1, 1, 1, 1, 1, 1, 1], False),  # 50
    Part.BSplineCurve([V(5.72742, -21.816534, 0), V(5.726336, -21.799078, 0), V(5.724197, -21.764654, 0), V(5.710351, -21.714506, 0), V(5.684137, -21.669487, 0), V(5.651266, -21.628392, 0), V(5.61063, -21.594881, 0), V(5.56518, -21.570004, 0), V(5.515295, -21.554862, 0), V(5.480537, -21.552933, 0), V(5.462837, -21.551951, 0)], [4, 1, 1, 1, 1, 1, 1, 1, 4], [0, 1.009421747, 1.99056486, 2.972319754, 3.999869655, 5.017953583, 5.993804169, 6.978383603, 8], False, 3, [1, 1, 1, 1, 1, 1, 1, 1, 1, 1, 1], False),  # 51
], False)
sketch2.addConstraint([
    Sketcher.Constraint("Block", 12),
    Sketcher.Constraint("Block", 13),
    Sketcher.Constraint("Block", 14),
    Sketcher.Constraint("Block", 15),
    Sketcher.Constraint("Block", 17),
    Sketcher.Constraint("Block", 18),
    Sketcher.Constraint("Block", 19),
    Sketcher.Constraint("Block", 20),
    Sketcher.Constraint("Block", 21),
    Sketcher.Constraint("Block", 22),
    Sketcher.Constraint("Block", 23),
    Sketcher.Constraint("Block", 25),
    Sketcher.Constraint("Block", 26),
    Sketcher.Constraint("Block", 27),
    Sketcher.Constraint("Block", 28),
    Sketcher.Constraint("Block", 29),
    Sketcher.Constraint("Block", 30),
    Sketcher.Constraint("Block", 31),
    Sketcher.Constraint("Block", 32),
    Sketcher.Constraint("Block", 33),
    Sketcher.Constraint("Block", 34),
    Sketcher.Constraint("Block", 35),
    Sketcher.Constraint("Block", 36),
    Sketcher.Constraint("Block", 38),
    Sketcher.Constraint("Block", 39),
    Sketcher.Constraint("Block", 40),
    Sketcher.Constraint("Block", 41),
    Sketcher.Constraint("Block", 42),
    Sketcher.Constraint("Block", 44),
    Sketcher.Constraint("Block", 45),
    Sketcher.Constraint("Block", 46),
    Sketcher.Constraint("Block", 47),
    Sketcher.Constraint("Block", 48),
    Sketcher.Constraint("Block", 49),
    Sketcher.Constraint("Block", 50),
    Sketcher.Constraint("Block", 51),
    Sketcher.Constraint("Coincident", 0, 2, 1, 1),
    Sketcher.Constraint("Coincident", 1, 2, 2, 1),
    Sketcher.Constraint("Coincident", 2, 2, 3, 1),
    Sketcher.Constraint("Coincident", 3, 2, 4, 1),
    Sketcher.Constraint("Coincident", 4, 2, 5, 1),
    Sketcher.Constraint("Coincident", 5, 2, 6, 1),
    Sketcher.Constraint("Coincident", 6, 2, 7, 1),
    Sketcher.Constraint("Coincident", 7, 2, 8, 1),
    Sketcher.Constraint("Coincident", 8, 2, 9, 1),
    Sketcher.Constraint("Coincident", 9, 2, 10, 1),
    Sketcher.Constraint("Coincident", 10, 2, 11, 1),
    Sketcher.Constraint("Coincident", 11, 2, 0, 1),
    Sketcher.Constraint("Coincident", 16, 2, 17, 2),
    Sketcher.Constraint("Coincident", 23, 1, 24, 1),
    Sketcher.Constraint("Coincident", 24, 2, 25, 2),
    Sketcher.Constraint("Coincident", 32, 1, 16, 1),
    Sketcher.Constraint("Coincident", 37, 2, 38, 2),
    Sketcher.Constraint("Coincident", 42, 1, 43, 1),
    Sketcher.Constraint("Coincident", 43, 2, 44, 2),
    Sketcher.Constraint("Coincident", 47, 1, 37, 1),
    Sketcher.Constraint("Horizontal", 0),
    Sketcher.Constraint("Vertical", 1),
    Sketcher.Constraint("Horizontal", 2),
    Sketcher.Constraint("Vertical", 3),
    Sketcher.Constraint("Horizontal", 4),
    Sketcher.Constraint("Vertical", 5),
    Sketcher.Constraint("Horizontal", 6),
    Sketcher.Constraint("Vertical", 7),
    Sketcher.Constraint("Horizontal", 8),
    Sketcher.Constraint("Vertical", 9),
    Sketcher.Constraint("Horizontal", 10),
    Sketcher.Constraint("Vertical", 11),
    Sketcher.Constraint("Vertical", 3, 2, 6, 2),
    Sketcher.Constraint("Vertical", 5, 2, 8, 2),
    Sketcher.Constraint("Vertical", 7, 2, 10, 2),
    Sketcher.Constraint("Equal", 3, 7),
    Sketcher.Constraint("Equal", 7, 11),
    Sketcher.Constraint("DistanceY", 1, 1, 1, 2, Q("0.125 in")),
    Sketcher.Constraint("DistanceX", 4, 2, 4, 1, 1.50609),
    Sketcher.Constraint("DistanceY", 3, 2, 3, 1, 0.325641),
    Sketcher.Constraint("DistanceX", 0, 2, 0, 1, 1.791026),
    Sketcher.Constraint("DistanceY", 5, 2, 5, 1, 1.221154),
    Sketcher.Constraint("DistanceX", 2, 2, -1, 1, 3.471939),
    Sketcher.Constraint("DistanceY", 5, 2, -1, 1, 23.139451),
])
sketch2.setExpression("Constraints[73]", "Params.sketch2_height")
pocket1 = body.newObject("PartDesign::Pocket", "Pocket")
pocket1.Profile = sketch2
pocket1.setExpression("Length", "Params.pocket1_length")
pocket1.Reversed = True

doc.recompute()
